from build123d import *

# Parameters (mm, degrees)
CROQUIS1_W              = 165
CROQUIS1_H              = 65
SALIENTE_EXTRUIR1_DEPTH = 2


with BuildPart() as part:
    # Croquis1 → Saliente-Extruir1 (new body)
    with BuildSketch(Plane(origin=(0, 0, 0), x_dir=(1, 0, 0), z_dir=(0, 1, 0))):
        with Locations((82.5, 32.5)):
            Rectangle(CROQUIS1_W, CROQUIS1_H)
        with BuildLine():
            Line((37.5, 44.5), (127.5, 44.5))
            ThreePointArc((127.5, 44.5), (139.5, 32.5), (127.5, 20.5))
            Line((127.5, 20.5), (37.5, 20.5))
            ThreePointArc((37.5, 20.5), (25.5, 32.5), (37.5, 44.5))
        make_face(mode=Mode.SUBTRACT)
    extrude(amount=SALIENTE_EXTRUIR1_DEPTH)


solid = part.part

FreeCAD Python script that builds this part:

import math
import FreeCAD as App
import Part
import Sketcher
from FreeCAD import Vector

doc = App.newDocument("Part")
body = doc.addObject("PartDesign::Body", "Body")

sketch1 = doc.addObject("Sketcher::SketchObject", "Sketch")
body.addObject(sketch1)
sketch1.AttachmentSupport = (doc.XZ_Plane, [""])
sketch1.MapMode = "FlatFace"
sketch1.addGeometry([
    Part.LineSegment(Vector(0, -65, 0), Vector(0, 0, 0)),
    Part.LineSegment(Vector(0, 0, 0), Vector(165, 0, 0)),
    Part.LineSegment(Vector(165, 0, 0), Vector(165, -65, 0)),
    Part.LineSegment(Vector(165, -65, 0), Vector(0, -65, 0)),
    Part.ArcOfCircle(Part.Circle(Vector(38, -32, 0), Vector(0, 0, 1), 12), math.radians(90), math.radians(270)),
    Part.LineSegment(Vector(38, -44, 0), Vector(128, -44, 0)),
    Part.ArcOfCircle(Part.Circle(Vector(128, -32, 0), Vector(0, 0, 1), 12), math.radians(-90), math.radians(90)),
    Part.LineSegment(Vector(128, -20, 0), Vector(38, -20, 0)),
], False)
sketch1.addConstraint([
    Sketcher.Constraint("Coincident", 0, 2, 1, 1),
    Sketcher.Constraint("Coincident", 1, 2, 2, 1),
    Sketcher.Constraint("Coincident", 2, 2, 3, 1),
    Sketcher.Constraint("Coincident", 3, 2, 0, 1),
    Sketcher.Constraint("Tangent", 4, 2, 5, 1),
    Sketcher.Constraint("Tangent", 5, 2, 6, 1),
    Sketcher.Constraint("Tangent", 6, 2, 7, 1),
    Sketcher.Constraint("Tangent", 7, 2, 4, 1),
    Sketcher.Constraint("Vertical", 0),
    Sketcher.Constraint("Horizontal", 1),
    Sketcher.Constraint("Vertical", 2),
    Sketcher.Constraint("Horizontal", 3),
    Sketcher.Constraint("Horizontal", 5),
    Sketcher.Constraint("Horizontal", 7),
    Sketcher.Constraint("Coincident", 0, 2, -1, 1),
    Sketcher.Constraint("Radius", 4, 12.0),
    Sketcher.Constraint("DistanceX", 1, 1, 1, 2, 165.0),
    Sketcher.Constraint("DistanceX", 5, 1, 5, 2, 90.0),
    Sketcher.Constraint("DistanceY", 0, 1, 0, 2, 65.0),
    Sketcher.Constraint("DistanceX", -1, 1, 4, 3, 37.5),
    Sketcher.Constraint("DistanceY", 4, 3, -1, 1, 32.5),
])
pad1 = doc.addObject("PartDesign::Pad", "Pad")
body.addObject(pad1)
pad1.Profile = sketch1
pad1.Length = 2
pad1.Reversed = True

doc.recompute()
